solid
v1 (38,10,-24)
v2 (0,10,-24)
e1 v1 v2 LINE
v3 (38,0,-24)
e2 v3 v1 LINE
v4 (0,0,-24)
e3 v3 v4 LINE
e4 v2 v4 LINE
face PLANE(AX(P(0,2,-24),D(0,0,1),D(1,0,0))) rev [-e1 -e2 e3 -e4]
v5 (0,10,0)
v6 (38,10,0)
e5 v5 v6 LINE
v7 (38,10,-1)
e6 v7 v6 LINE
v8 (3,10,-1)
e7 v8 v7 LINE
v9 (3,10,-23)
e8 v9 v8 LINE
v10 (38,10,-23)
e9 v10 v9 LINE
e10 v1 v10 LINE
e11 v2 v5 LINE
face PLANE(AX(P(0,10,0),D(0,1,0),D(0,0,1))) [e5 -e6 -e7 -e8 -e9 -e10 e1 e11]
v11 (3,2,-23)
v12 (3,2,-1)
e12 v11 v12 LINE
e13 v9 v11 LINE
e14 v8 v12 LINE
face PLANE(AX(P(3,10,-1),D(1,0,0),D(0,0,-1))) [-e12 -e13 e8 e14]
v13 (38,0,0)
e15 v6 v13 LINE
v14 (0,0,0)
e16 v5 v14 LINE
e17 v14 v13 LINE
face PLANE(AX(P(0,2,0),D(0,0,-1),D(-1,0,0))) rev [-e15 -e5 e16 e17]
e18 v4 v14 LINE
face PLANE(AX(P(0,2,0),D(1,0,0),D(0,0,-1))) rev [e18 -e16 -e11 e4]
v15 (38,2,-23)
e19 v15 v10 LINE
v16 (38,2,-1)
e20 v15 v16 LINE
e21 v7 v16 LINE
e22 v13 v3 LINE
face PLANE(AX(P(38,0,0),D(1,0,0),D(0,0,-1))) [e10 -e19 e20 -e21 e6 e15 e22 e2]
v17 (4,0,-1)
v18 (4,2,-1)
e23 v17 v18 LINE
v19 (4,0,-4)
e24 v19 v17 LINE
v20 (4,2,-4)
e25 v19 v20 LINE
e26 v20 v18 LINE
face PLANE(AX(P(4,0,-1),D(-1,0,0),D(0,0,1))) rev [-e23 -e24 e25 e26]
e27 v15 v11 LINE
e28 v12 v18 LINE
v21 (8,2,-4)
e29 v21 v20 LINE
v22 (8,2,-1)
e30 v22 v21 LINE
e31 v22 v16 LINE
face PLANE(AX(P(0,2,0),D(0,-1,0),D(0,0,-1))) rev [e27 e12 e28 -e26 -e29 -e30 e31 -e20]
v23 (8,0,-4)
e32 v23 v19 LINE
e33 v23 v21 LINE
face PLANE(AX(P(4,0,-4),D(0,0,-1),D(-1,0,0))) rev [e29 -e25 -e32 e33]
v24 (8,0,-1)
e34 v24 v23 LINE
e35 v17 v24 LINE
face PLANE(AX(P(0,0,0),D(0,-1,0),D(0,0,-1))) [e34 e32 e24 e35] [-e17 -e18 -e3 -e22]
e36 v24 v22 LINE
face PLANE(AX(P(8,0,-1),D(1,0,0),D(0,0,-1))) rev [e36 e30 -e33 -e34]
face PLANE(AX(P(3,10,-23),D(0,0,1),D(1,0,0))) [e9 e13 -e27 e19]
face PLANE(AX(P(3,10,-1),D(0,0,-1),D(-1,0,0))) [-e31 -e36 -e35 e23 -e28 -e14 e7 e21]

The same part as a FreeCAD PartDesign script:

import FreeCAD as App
import Part
import Sketcher

V = App.Vector
Q = App.Units.Quantity

doc = App.newDocument("Part")
body = doc.addObject("PartDesign::Body", "Body")

sketch1 = body.newObject("Sketcher::SketchObject", "Sketch")
sketch1.AttachmentSupport = (doc.getObject("XZ_Plane"), [""])
sketch1.MapMode = "FlatFace"
sketch1.addGeometry(Part.LineSegment(V(0, -24, 0), V(0, 0, 0)), False)
sketch1.addGeometry(Part.LineSegment(V(0, 0, 0), V(40, 0, 0)), False)
sketch1.addGeometry(Part.LineSegment(V(40, 0, 0), V(40, -24, 0)), False)
sketch1.addGeometry(Part.LineSegment(V(40, -24, 0), V(0, -24, 0)), False)
sketch1.addConstraint(Sketcher.Constraint("Coincident", 0, 2, 1, 1))
sketch1.addConstraint(Sketcher.Constraint("Coincident", 1, 2, 2, 1))
sketch1.addConstraint(Sketcher.Constraint("Coincident", 2, 2, 3, 1))
sketch1.addConstraint(Sketcher.Constraint("Coincident", 3, 2, 0, 1))
sketch1.addConstraint(Sketcher.Constraint("Vertical", 0))
sketch1.addConstraint(Sketcher.Constraint("Horizontal", 1))
sketch1.addConstraint(Sketcher.Constraint("Vertical", 2))
sketch1.addConstraint(Sketcher.Constraint("Horizontal", 3))
sketch1.addConstraint(Sketcher.Constraint("Coincident", 0, 2, -1, 1))
sketch1.addConstraint(Sketcher.Constraint("DistanceX", 1, 1, 1, 2, Q("40 mm")))
sketch1.addConstraint(Sketcher.Constraint("DistanceY", 0, 1, 0, 2, Q("24 mm")))
pad1 = body.newObject("PartDesign::Pad", "Pad")
pad1.Profile = sketch1
pad1.Length = 2
pad1.Reversed = True

sketch2 = body.newObject("Sketcher::SketchObject", "Sketch001")
sketch2.AttachmentSupport = (doc.getObject("XZ_Plane"), [""])
sketch2.MapMode = "FlatFace"
sketch2.AttachmentOffset = App.Placement(V(0, 0, -2), App.Rotation())
sketch2.addGeometry(Part.LineSegment(V(0, -24, 0), V(0, 0, 0)), False)
sketch2.addGeometry(Part.LineSegment(V(0, 0, 0), V(40, 0, 0)), False)
sketch2.addGeometry(Part.LineSegment(V(40, 0, 0), V(40, -24, 0)), False)
sketch2.addGeometry(Part.LineSegment(V(40, -24, 0), V(0, -24, 0)), False)
sketch2.addGeometry(Part.LineSegment(V(39, -1, 0), V(3, -1, 0)), False)
sketch2.addGeometry(Part.LineSegment(V(3, -1, 0), V(3, -23, 0)), False)
sketch2.addGeometry(Part.LineSegment(V(3, -23, 0), V(39, -23, 0)), False)
sketch2.addGeometry(Part.LineSegment(V(39, -23, 0), V(39, -1, 0)), False)
sketch2.addConstraint(Sketcher.Constraint("Coincident", 0, 2, 1, 1))
sketch2.addConstraint(Sketcher.Constraint("Coincident", 1, 2, 2, 1))
sketch2.addConstraint(Sketcher.Constraint("Coincident", 2, 2, 3, 1))
sketch2.addConstraint(Sketcher.Constraint("Coincident", 3, 2, 0, 1))
sketch2.addConstraint(Sketcher.Constraint("Coincident", 4, 2, 5, 1))
sketch2.addConstraint(Sketcher.Constraint("Coincident", 5, 2, 6, 1))
sketch2.addConstraint(Sketcher.Constraint("Coincident", 6, 2, 7, 1))
sketch2.addConstraint(Sketcher.Constraint("Coincident", 7, 2, 4, 1))
sketch2.addConstraint(Sketcher.Constraint("Vertical", 0))
sketch2.addConstraint(Sketcher.Constraint("Horizontal", 1))
sketch2.addConstraint(Sketcher.Constraint("Vertical", 2))
sketch2.addConstraint(Sketcher.Constraint("Horizontal", 3))
sketch2.addConstraint(Sketcher.Constraint("Horizontal", 4))
sketch2.addConstraint(Sketcher.Constraint("Vertical", 5))
sketch2.addConstraint(Sketcher.Constraint("Horizontal", 6))
sketch2.addConstraint(Sketcher.Constraint("Vertical", 7))
sketch2.addConstraint(Sketcher.Constraint("Coincident", 0, 2, -1, 1))
sketch2.addConstraint(Sketcher.Constraint("DistanceX", 1, 1, 1, 2, Q("40 mm")))
sketch2.addConstraint(Sketcher.Constraint("DistanceX", 4, 2, 4, 1, Q("36 mm")))
sketch2.addConstraint(Sketcher.Constraint("DistanceY", 0, 1, 0, 2, Q("24 mm")))
sketch2.addConstraint(Sketcher.Constraint("DistanceY", 5, 2, 5, 1, Q("22 mm")))
sketch2.addConstraint(Sketcher.Constraint("DistanceX", -1, 1, 4, 2, Q("3 mm")))
sketch2.addConstraint(Sketcher.Constraint("DistanceY", 4, 2, -1, 1, Q("1 mm")))
pad2 = body.newObject("PartDesign::Pad", "Pad001")
pad2.Profile = sketch2
pad2.Length = 8
pad2.Reversed = True

sketch3 = body.newObject("Sketcher::SketchObject", "Sketch002")
sketch3.AttachmentSupport = (doc.getObject("XZ_Plane"), [""])
sketch3.MapMode = "FlatFace"
sketch3.AttachmentOffset = App.Placement(V(0, 0, -2), App.Rotation())
sketch3.addGeometry(Part.LineSegment(V(4, -4, 0), V(4, -1, 0)), False)
sketch3.addGeometry(Part.LineSegment(V(4, -1, 0), V(8, -1, 0)), False)
sketch3.addGeometry(Part.LineSegment(V(8, -1, 0), V(8, -4, 0)), False)
sketch3.addGeometry(Part.LineSegment(V(8, -4, 0), V(4, -4, 0)), False)
sketch3.addConstraint(Sketcher.Constraint("Coincident", 0, 2, 1, 1))
sketch3.addConstraint(Sketcher.Constraint("Coincident", 1, 2, 2, 1))
sketch3.addConstraint(Sketcher.Constraint("Coincident", 2, 2, 3, 1))
sketch3.addConstraint(Sketcher.Constraint("Coincident", 3, 2, 0, 1))
sketch3.addConstraint(Sketcher.Constraint("Vertical", 0))
sketch3.addConstraint(Sketcher.Constraint("Horizontal", 1))
sketch3.addConstraint(Sketcher.Constraint("Vertical", 2))
sketch3.addConstraint(Sketcher.Constraint("Horizontal", 3))
sketch3.addConstraint(Sketcher.Constraint("DistanceX", 1, 1, 1, 2, Q("4 mm")))
sketch3.addConstraint(Sketcher.Constraint("DistanceY", 0, 1, 0, 2, Q("3 mm")))
sketch3.addConstraint(Sketcher.Constraint("DistanceX", -1, 1, 0, 2, Q("4 mm")))
sketch3.addConstraint(Sketcher.Constraint("DistanceY", 0, 2, -1, 1, Q("1 mm")))
pocket1 = body.newObject("PartDesign::Pocket", "Pocket")
pocket1.Profile = sketch3
pocket1.Length = 2
pocket1.Reversed = True

sketch4 = body.newObject("Sketcher::SketchObject", "Sketch003")
sketch4.AttachmentSupport = (doc.getObject("YZ_Plane"), [""])
sketch4.MapMode = "FlatFace"
sketch4.AttachmentOffset = App.Placement(V(0, 0, 40), App.Rotation())
sketch4.addGeometry(Part.LineSegment(V(10, 0, 0), V(0, 0, 0)), False)
sketch4.addGeometry(Part.LineSegment(V(0, 0, 0), V(0, -24, 0)), False)
sketch4.addGeometry(Part.LineSegment(V(0, -24, 0), V(10, -24, 0)), False)
sketch4.addGeometry(Part.LineSegment(V(10, -24, 0), V(10, 0, 0)), False)
sketch4.addConstraint(Sketcher.Constraint("Coincident", 0, 2, 1, 1))
sketch4.addConstraint(Sketcher.Constraint("Coincident", 1, 2, 2, 1))
sketch4.addConstraint(Sketcher.Constraint("Coincident", 2, 2, 3, 1))
sketch4.addConstraint(Sketcher.Constraint("Coincident", 3, 2, 0, 1))
sketch4.addConstraint(Sketcher.Constraint("Horizontal", 0))
sketch4.addConstraint(Sketcher.Constraint("Vertical", 1))
sketch4.addConstraint(Sketcher.Constraint("Horizontal", 2))
sketch4.addConstraint(Sketcher.Constraint("Vertical", 3))
sketch4.addConstraint(Sketcher.Constraint("Coincident", 0, 2, -1, 1))
sketch4.addConstraint(Sketcher.Constraint("DistanceX", 0, 2, 0, 1, Q("10 mm")))
sketch4.addConstraint(Sketcher.Constraint("DistanceY", 1, 2, 1, 1, Q("24 mm")))
pocket2 = body.newObject("PartDesign::Pocket", "Pocket001")
pocket2.Profile = sketch4
pocket2.Length = 2

doc.recompute()
